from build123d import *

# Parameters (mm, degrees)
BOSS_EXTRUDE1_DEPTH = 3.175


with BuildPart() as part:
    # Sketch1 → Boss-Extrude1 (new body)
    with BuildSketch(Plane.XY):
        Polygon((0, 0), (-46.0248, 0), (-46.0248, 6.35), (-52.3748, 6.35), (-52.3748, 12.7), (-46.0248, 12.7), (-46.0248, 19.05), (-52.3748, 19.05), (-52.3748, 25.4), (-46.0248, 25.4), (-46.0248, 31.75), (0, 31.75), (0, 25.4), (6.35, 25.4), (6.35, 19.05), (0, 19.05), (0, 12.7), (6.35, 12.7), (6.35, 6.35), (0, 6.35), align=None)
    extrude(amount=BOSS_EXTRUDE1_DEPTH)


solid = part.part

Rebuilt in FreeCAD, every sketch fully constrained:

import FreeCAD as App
import Part
import Sketcher
Q = App.Units.Quantity

doc = App.newDocument("Part")
body = doc.addObject("PartDesign::Body", "Body")

# Sketch on XY plane
sketch1 = body.newObject("Sketcher::SketchObject", "Sketch")
sketch1.AttachmentSupport = (doc.getObject("XY_Plane"), [""])
sketch1.MapMode = "FlatFace"
sketch1.addGeometry(Part.LineSegment(App.Vector(-46, 0, 0), App.Vector(0, 0, 0)), False)
sketch1.addGeometry(Part.LineSegment(App.Vector(0, 0, 0), App.Vector(0, 6, 0)), False)
sketch1.addGeometry(Part.LineSegment(App.Vector(0, 6, 0), App.Vector(6, 6, 0)), False)
sketch1.addGeometry(Part.LineSegment(App.Vector(6, 6, 0), App.Vector(6, 13, 0)), False)
sketch1.addGeometry(Part.LineSegment(App.Vector(6, 13, 0), App.Vector(0, 13, 0)), False)
sketch1.addGeometry(Part.LineSegment(App.Vector(0, 13, 0), App.Vector(0, 19, 0)), False)
sketch1.addGeometry(Part.LineSegment(App.Vector(0, 19, 0), App.Vector(6, 19, 0)), False)
sketch1.addGeometry(Part.LineSegment(App.Vector(6, 19, 0), App.Vector(6, 25, 0)), False)
sketch1.addGeometry(Part.LineSegment(App.Vector(6, 25, 0), App.Vector(0, 25, 0)), False)
sketch1.addGeometry(Part.LineSegment(App.Vector(0, 25, 0), App.Vector(0, 32, 0)), False)
sketch1.addGeometry(Part.LineSegment(App.Vector(0, 32, 0), App.Vector(-46, 32, 0)), False)
sketch1.addGeometry(Part.LineSegment(App.Vector(-46, 32, 0), App.Vector(-46, 25, 0)), False)
sketch1.addGeometry(Part.LineSegment(App.Vector(-46, 25, 0), App.Vector(-52, 25, 0)), False)
sketch1.addGeometry(Part.LineSegment(App.Vector(-52, 25, 0), App.Vector(-52, 19, 0)), False)
sketch1.addGeometry(Part.LineSegment(App.Vector(-52, 19, 0), App.Vector(-46, 19, 0)), False)
sketch1.addGeometry(Part.LineSegment(App.Vector(-46, 19, 0), App.Vector(-46, 13, 0)), False)
sketch1.addGeometry(Part.LineSegment(App.Vector(-46, 13, 0), App.Vector(-52, 13, 0)), False)
sketch1.addGeometry(Part.LineSegment(App.Vector(-52, 13, 0), App.Vector(-52, 6, 0)), False)
sketch1.addGeometry(Part.LineSegment(App.Vector(-52, 6, 0), App.Vector(-46, 6, 0)), False)
sketch1.addGeometry(Part.LineSegment(App.Vector(-46, 6, 0), App.Vector(-46, 0, 0)), False)
sketch1.addConstraint(Sketcher.Constraint("Coincident", 0, 2, 1, 1))
sketch1.addConstraint(Sketcher.Constraint("Coincident", 1, 2, 2, 1))
sketch1.addConstraint(Sketcher.Constraint("Coincident", 2, 2, 3, 1))
sketch1.addConstraint(Sketcher.Constraint("Coincident", 3, 2, 4, 1))
sketch1.addConstraint(Sketcher.Constraint("Coincident", 4, 2, 5, 1))
sketch1.addConstraint(Sketcher.Constraint("Coincident", 5, 2, 6, 1))
sketch1.addConstraint(Sketcher.Constraint("Coincident", 6, 2, 7, 1))
sketch1.addConstraint(Sketcher.Constraint("Coincident", 7, 2, 8, 1))
sketch1.addConstraint(Sketcher.Constraint("Coincident", 8, 2, 9, 1))
sketch1.addConstraint(Sketcher.Constraint("Coincident", 9, 2, 10, 1))
sketch1.addConstraint(Sketcher.Constraint("Coincident", 10, 2, 11, 1))
sketch1.addConstraint(Sketcher.Constraint("Coincident", 11, 2, 12, 1))
sketch1.addConstraint(Sketcher.Constraint("Coincident", 12, 2, 13, 1))
sketch1.addConstraint(Sketcher.Constraint("Coincident", 13, 2, 14, 1))
sketch1.addConstraint(Sketcher.Constraint("Coincident", 14, 2, 15, 1))
sketch1.addConstraint(Sketcher.Constraint("Coincident", 15, 2, 16, 1))
sketch1.addConstraint(Sketcher.Constraint("Coincident", 16, 2, 17, 1))
sketch1.addConstraint(Sketcher.Constraint("Coincident", 17, 2, 18, 1))
sketch1.addConstraint(Sketcher.Constraint("Coincident", 18, 2, 19, 1))
sketch1.addConstraint(Sketcher.Constraint("Coincident", 19, 2, 0, 1))
sketch1.addConstraint(Sketcher.Constraint("Horizontal", 0))
sketch1.addConstraint(Sketcher.Constraint("Vertical", 1))
sketch1.addConstraint(Sketcher.Constraint("Horizontal", 2))
sketch1.addConstraint(Sketcher.Constraint("Vertical", 3))
sketch1.addConstraint(Sketcher.Constraint("Horizontal", 4))
sketch1.addConstraint(Sketcher.Constraint("Vertical", 5))
sketch1.addConstraint(Sketcher.Constraint("Horizontal", 6))
sketch1.addConstraint(Sketcher.Constraint("Vertical", 7))
sketch1.addConstraint(Sketcher.Constraint("Horizontal", 8))
sketch1.addConstraint(Sketcher.Constraint("Vertical", 9))
sketch1.addConstraint(Sketcher.Constraint("Horizontal", 10))
sketch1.addConstraint(Sketcher.Constraint("Vertical", 11))
sketch1.addConstraint(Sketcher.Constraint("Horizontal", 12))
sketch1.addConstraint(Sketcher.Constraint("Vertical", 13))
sketch1.addConstraint(Sketcher.Constraint("Horizontal", 14))
sketch1.addConstraint(Sketcher.Constraint("Vertical", 15))
sketch1.addConstraint(Sketcher.Constraint("Horizontal", 16))
sketch1.addConstraint(Sketcher.Constraint("Vertical", 17))
sketch1.addConstraint(Sketcher.Constraint("Horizontal", 18))
sketch1.addConstraint(Sketcher.Constraint("Vertical", 19))
sketch1.addConstraint(Sketcher.Constraint("Coincident", 0, 2, -1, 1))
sketch1.addConstraint(Sketcher.Constraint("PointOnObject", 4, 2, -2))
sketch1.addConstraint(Sketcher.Constraint("PointOnObject", 8, 2, -2))
sketch1.addConstraint(Sketcher.Constraint("Horizontal", 8, 2, 11, 2))
sketch1.addConstraint(Sketcher.Constraint("Horizontal", 6, 2, 13, 2))
sketch1.addConstraint(Sketcher.Constraint("Horizontal", 4, 2, 15, 2))
sketch1.addConstraint(Sketcher.Constraint("Horizontal", 2, 2, 17, 2))
sketch1.addConstraint(Sketcher.Constraint("Vertical", 3, 2, 6, 2))
sketch1.addConstraint(Sketcher.Constraint("Vertical", 11, 2, 14, 2))
sketch1.addConstraint(Sketcher.Constraint("Vertical", 13, 2, 16, 2))
sketch1.addConstraint(Sketcher.Constraint("Vertical", 15, 2, 18, 2))
sketch1.addConstraint(Sketcher.Constraint("Equal", 8, 12))
sketch1.addConstraint(Sketcher.Constraint("Equal", 18, 1))
sketch1.addConstraint(Sketcher.Constraint("Equal", 1, 3))
sketch1.addConstraint(Sketcher.Constraint("Equal", 3, 5))
sketch1.addConstraint(Sketcher.Constraint("Equal", 5, 7))
sketch1.addConstraint(Sketcher.Constraint("Equal", 7, 9))
sketch1.addConstraint(Sketcher.Constraint("DistanceY", -1, 1, 7, 2, Q("1 in")))
sketch1.addConstraint(Sketcher.Constraint("DistanceX", 0, 1, 0, 2, Q("1.812 in")))
pad1 = body.newObject("PartDesign::Pad", "Pad")
pad1.Profile = sketch1
pad1.Length = Q("0.125 in")

doc.recompute()
